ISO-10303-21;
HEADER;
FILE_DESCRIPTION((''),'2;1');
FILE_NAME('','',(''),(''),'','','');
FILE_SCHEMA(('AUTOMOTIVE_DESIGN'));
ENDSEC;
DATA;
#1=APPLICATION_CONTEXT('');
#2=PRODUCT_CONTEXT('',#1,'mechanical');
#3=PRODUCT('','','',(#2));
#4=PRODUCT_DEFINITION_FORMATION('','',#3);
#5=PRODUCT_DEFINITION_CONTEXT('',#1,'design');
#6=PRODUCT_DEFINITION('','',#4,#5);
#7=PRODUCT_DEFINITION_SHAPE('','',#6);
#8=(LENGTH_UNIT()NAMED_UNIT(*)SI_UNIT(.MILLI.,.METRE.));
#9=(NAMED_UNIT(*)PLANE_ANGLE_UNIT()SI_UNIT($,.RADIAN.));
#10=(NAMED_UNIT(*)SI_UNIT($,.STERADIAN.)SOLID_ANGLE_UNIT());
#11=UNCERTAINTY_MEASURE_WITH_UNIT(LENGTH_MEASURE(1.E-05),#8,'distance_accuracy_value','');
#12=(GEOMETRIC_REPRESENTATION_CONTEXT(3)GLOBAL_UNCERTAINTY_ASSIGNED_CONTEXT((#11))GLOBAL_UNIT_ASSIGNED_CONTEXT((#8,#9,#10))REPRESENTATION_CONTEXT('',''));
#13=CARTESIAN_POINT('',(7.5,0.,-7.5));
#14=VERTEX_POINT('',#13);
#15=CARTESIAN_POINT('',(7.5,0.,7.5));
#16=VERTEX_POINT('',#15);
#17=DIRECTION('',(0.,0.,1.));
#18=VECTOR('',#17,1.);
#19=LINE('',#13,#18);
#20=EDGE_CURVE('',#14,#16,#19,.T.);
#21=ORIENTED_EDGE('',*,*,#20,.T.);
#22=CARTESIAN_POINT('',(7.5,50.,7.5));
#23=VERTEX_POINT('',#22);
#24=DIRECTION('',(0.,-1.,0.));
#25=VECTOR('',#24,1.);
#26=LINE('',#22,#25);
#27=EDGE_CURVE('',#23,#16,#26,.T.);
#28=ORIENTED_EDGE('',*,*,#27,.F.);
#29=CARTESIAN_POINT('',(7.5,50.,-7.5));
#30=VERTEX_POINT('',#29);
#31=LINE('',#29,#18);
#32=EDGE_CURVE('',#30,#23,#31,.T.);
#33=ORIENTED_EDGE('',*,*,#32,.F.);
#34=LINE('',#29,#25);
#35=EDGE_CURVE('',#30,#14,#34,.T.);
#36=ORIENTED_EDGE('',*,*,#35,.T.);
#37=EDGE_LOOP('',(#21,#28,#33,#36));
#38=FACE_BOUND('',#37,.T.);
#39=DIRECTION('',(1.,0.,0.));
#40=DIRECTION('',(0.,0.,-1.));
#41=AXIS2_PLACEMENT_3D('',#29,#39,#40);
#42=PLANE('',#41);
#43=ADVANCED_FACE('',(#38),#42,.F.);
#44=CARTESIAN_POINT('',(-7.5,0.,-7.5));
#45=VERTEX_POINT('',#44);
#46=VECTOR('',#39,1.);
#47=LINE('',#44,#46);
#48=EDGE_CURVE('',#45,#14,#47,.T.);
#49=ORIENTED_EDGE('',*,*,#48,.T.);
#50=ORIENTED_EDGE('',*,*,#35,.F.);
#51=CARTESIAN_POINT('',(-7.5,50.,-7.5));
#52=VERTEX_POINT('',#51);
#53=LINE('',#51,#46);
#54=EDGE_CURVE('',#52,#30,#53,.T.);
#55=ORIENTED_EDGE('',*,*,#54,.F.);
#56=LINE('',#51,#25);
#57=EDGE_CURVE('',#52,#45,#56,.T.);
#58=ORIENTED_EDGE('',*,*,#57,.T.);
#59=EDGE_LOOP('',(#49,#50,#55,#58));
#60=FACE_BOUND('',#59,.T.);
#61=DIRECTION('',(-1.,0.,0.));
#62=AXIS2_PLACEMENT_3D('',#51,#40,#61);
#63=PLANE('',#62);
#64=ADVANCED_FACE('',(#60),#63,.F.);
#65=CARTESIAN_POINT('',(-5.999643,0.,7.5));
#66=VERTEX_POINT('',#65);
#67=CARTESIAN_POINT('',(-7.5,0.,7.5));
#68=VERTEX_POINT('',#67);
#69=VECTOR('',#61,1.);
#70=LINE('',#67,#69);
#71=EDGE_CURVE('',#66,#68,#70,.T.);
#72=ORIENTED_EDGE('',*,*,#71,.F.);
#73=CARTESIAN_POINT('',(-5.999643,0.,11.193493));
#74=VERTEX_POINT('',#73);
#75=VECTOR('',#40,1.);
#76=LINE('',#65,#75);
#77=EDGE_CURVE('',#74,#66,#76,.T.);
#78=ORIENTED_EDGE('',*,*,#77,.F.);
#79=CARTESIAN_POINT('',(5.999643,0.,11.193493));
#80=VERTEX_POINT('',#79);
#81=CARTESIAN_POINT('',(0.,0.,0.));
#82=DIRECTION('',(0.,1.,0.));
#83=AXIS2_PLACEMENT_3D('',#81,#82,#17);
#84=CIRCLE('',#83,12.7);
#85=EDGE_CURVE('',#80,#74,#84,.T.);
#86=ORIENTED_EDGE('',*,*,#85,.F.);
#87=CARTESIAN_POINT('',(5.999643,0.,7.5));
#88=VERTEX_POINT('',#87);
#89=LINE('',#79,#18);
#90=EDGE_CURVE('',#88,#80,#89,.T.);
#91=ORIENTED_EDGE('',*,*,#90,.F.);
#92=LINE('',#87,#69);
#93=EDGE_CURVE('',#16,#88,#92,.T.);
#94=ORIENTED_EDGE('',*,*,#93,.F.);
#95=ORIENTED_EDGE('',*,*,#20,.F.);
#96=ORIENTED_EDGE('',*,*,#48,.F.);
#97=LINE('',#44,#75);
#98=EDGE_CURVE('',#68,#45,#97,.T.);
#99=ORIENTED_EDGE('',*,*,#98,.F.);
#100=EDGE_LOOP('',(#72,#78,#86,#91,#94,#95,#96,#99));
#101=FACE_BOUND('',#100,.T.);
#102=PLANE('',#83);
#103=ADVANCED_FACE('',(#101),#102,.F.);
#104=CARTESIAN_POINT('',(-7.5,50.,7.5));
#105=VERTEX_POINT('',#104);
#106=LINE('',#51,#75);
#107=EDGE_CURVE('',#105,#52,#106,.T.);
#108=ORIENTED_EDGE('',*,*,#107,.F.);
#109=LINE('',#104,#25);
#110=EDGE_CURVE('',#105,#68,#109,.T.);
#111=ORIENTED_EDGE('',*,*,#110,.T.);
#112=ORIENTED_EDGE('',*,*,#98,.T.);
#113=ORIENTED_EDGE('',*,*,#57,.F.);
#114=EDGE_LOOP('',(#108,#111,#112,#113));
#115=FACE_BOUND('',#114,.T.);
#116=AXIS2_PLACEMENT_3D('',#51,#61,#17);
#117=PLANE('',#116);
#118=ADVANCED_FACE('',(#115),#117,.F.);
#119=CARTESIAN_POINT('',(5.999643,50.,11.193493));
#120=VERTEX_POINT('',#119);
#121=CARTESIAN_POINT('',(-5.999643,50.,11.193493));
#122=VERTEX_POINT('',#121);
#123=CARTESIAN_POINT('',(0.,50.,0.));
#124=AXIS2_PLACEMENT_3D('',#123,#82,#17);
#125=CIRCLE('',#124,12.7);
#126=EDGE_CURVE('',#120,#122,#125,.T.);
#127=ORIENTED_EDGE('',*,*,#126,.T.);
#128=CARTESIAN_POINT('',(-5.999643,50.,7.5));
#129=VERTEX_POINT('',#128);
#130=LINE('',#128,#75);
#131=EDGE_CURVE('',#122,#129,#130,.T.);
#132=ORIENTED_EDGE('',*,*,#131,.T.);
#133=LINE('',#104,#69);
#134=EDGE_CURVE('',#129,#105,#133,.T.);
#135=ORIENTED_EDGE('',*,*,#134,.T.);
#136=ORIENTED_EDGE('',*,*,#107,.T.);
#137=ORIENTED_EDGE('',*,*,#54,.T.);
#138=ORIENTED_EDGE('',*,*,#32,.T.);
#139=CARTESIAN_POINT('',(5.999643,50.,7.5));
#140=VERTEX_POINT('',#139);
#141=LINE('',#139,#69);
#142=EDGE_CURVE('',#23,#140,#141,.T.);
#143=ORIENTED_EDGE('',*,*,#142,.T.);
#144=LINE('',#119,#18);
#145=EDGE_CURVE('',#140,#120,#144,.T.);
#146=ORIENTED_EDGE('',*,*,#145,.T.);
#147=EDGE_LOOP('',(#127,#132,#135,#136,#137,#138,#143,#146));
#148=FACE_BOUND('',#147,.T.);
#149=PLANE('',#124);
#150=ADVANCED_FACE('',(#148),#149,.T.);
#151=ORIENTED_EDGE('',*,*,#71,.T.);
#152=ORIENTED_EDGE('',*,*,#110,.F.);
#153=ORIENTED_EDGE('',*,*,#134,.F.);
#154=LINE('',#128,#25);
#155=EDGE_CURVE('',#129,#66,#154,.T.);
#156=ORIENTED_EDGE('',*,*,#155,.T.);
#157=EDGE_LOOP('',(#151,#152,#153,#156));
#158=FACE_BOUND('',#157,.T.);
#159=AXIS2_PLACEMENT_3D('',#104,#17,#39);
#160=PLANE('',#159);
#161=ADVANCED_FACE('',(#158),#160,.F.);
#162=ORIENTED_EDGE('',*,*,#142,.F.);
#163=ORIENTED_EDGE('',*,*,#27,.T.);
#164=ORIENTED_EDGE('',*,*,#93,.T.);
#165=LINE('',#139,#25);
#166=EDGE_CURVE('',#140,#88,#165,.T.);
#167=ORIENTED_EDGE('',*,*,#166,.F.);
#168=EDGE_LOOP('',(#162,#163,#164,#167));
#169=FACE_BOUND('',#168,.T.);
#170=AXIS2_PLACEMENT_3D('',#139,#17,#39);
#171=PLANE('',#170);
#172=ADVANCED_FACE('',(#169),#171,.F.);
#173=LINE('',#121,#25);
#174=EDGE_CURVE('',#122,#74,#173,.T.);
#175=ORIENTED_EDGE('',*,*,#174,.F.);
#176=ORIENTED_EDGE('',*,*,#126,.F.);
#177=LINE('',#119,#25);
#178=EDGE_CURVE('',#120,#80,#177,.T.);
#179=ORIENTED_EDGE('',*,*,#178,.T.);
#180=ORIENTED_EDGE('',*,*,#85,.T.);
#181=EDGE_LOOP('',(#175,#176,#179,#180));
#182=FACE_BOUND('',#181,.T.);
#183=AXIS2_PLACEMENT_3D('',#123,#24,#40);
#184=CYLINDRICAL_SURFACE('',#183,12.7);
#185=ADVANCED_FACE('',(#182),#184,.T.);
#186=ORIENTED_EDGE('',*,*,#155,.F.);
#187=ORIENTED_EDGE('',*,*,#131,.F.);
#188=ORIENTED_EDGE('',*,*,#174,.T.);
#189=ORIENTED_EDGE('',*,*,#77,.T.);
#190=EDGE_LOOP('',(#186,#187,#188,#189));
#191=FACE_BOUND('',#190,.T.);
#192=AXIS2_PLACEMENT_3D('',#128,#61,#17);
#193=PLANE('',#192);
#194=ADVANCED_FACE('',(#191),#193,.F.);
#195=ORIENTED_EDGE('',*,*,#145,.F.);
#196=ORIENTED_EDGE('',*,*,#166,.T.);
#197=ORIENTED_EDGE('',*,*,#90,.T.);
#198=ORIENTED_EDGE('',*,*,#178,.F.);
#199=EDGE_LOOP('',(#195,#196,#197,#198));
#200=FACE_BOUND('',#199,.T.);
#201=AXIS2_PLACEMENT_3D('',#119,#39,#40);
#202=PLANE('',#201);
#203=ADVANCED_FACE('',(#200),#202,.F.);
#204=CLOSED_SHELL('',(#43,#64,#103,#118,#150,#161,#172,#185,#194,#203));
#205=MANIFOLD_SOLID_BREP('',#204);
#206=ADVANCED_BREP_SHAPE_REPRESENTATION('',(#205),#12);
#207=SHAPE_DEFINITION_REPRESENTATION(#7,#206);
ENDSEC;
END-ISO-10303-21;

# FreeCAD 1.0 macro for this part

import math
import FreeCAD as App
import Part
import Sketcher

doc = App.newDocument("Part")
body = doc.addObject("PartDesign::Body", "Body")

sketch1 = body.newObject("Sketcher::SketchObject", "Sketch")
sketch1.AttachmentSupport = (doc.getObject("XZ_Plane"), [""])
sketch1.MapMode = "FlatFace"
sketch1.addGeometry(Part.LineSegment(App.Vector(7.5, 7.5, 0), App.Vector(6, 7.5, 0)), False)
sketch1.addGeometry(Part.LineSegment(App.Vector(6, 7.5, 0), App.Vector(6, 11.2, 0)), False)
sketch1.addGeometry(Part.ArcOfCircle(Part.Circle(App.Vector(0, 0, 0), App.Vector(0, 0, 1), 12.7), math.radians(118), math.radians(422)), False)
sketch1.addGeometry(Part.LineSegment(App.Vector(-6, 11.2, 0), App.Vector(-6, 7.5, 0)), False)
sketch1.addGeometry(Part.LineSegment(App.Vector(-6, 7.5, 0), App.Vector(-7.5, 7.5, 0)), False)
sketch1.addGeometry(Part.LineSegment(App.Vector(-7.5, 7.5, 0), App.Vector(-7.5, -7.5, 0)), False)
sketch1.addGeometry(Part.LineSegment(App.Vector(-7.5, -7.5, 0), App.Vector(7.5, -7.5, 0)), False)
sketch1.addGeometry(Part.LineSegment(App.Vector(7.5, -7.5, 0), App.Vector(7.5, 7.5, 0)), False)
sketch1.addConstraint(Sketcher.Constraint("Coincident", 0, 2, 1, 1))
sketch1.addConstraint(Sketcher.Constraint("Coincident", 1, 2, 2, 2))
sketch1.addConstraint(Sketcher.Constraint("Coincident", 2, 1, 3, 1))
sketch1.addConstraint(Sketcher.Constraint("Coincident", 3, 2, 4, 1))
sketch1.addConstraint(Sketcher.Constraint("Coincident", 4, 2, 5, 1))
sketch1.addConstraint(Sketcher.Constraint("Coincident", 5, 2, 6, 1))
sketch1.addConstraint(Sketcher.Constraint("Coincident", 6, 2, 7, 1))
sketch1.addConstraint(Sketcher.Constraint("Coincident", 7, 2, 0, 1))
sketch1.addConstraint(Sketcher.Constraint("Horizontal", 0))
sketch1.addConstraint(Sketcher.Constraint("Vertical", 1))
sketch1.addConstraint(Sketcher.Constraint("Vertical", 3))
sketch1.addConstraint(Sketcher.Constraint("Horizontal", 4))
sketch1.addConstraint(Sketcher.Constraint("Vertical", 5))
sketch1.addConstraint(Sketcher.Constraint("Horizontal", 6))
sketch1.addConstraint(Sketcher.Constraint("Vertical", 7))
sketch1.addConstraint(Sketcher.Constraint("Coincident", 2, 3, -1, 1))
sketch1.addConstraint(Sketcher.Constraint("Symmetric", 4, 2, 6, 2, -1, 1))
sketch1.addConstraint(Sketcher.Constraint("Symmetric", 0, 2, 3, 2, -2))
sketch1.addConstraint(Sketcher.Constraint("Equal", 6, 5))
sketch1.addConstraint(Sketcher.Constraint("Radius", 2, 12.7))
sketch1.addConstraint(Sketcher.Constraint("DistanceX", 6, 1, 6, 2, 15.0))
sketch1.addConstraint(Sketcher.Constraint("DistanceX", 0, 2, 0, 1, 1.500357))
pad1 = body.newObject("PartDesign::Pad", "Pad")
pad1.Profile = sketch1
pad1.Length = 50
pad1.Reversed = True

doc.recompute()
